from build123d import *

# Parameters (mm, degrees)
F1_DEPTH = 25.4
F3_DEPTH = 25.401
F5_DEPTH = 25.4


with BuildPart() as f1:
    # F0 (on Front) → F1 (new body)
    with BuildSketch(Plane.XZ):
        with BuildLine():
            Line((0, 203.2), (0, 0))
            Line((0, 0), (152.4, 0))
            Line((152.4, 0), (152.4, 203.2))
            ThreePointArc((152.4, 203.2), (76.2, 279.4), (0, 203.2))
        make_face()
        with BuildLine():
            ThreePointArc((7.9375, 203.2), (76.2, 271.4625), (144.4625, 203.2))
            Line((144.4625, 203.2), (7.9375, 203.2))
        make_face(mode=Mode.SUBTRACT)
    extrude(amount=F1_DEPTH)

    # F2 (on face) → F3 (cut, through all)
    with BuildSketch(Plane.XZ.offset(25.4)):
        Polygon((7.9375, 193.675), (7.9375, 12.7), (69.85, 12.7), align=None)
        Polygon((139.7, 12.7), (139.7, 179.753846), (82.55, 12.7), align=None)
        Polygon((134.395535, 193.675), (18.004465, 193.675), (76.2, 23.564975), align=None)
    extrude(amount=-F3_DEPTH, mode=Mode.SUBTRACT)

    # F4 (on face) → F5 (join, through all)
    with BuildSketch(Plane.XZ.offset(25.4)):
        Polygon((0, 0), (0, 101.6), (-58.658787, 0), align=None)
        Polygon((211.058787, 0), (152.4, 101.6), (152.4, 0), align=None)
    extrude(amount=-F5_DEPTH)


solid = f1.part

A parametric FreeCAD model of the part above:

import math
import FreeCAD as App
import Part
import Sketcher

V = App.Vector
Q = App.Units.Quantity

doc = App.newDocument("Part")
params = doc.addObject("Spreadsheet::Sheet", "Params")
for row, (alias, value) in enumerate([
    ("sketch1_radius", "3 in"),
    ("sketch1_height", "8 in"),
    ("sketch1_radius2", "2.6875 in"),
    ("pad1_length", "1 in"),
    ("sketch2_width", "2.25 in"),
    ("sketch2_width2", "2.4375 in"),
    ("sketch2_height", "7.125 in"),
    ("sketch3_height", "4 in"),
    ("pad2_length", "1 in"),
], start=1):
    params.set(f"A{row}", alias)
    params.set(f"B{row}", "=" + value)
    params.setAlias(f"B{row}", alias)

body = doc.addObject("PartDesign::Body", "Body")

sketch1 = body.newObject("Sketcher::SketchObject", "Sketch")
sketch1.AttachmentSupport = (doc.getObject("XZ_Plane"), [""])
sketch1.MapMode = "FlatFace"
sketch1.addGeometry(Part.LineSegment(V(0, 203, 0), V(0, 0, 0)), False)
sketch1.addGeometry(Part.LineSegment(V(0, 0, 0), V(152, 0, 0)), False)
sketch1.addGeometry(Part.LineSegment(V(152, 0, 0), V(152, 203, 0)), False)
sketch1.addGeometry(Part.ArcOfCircle(Part.Circle(V(76, 203, 0), V(0, 0, 1), 76), math.radians(0), math.radians(180)), False)
sketch1.addGeometry(Part.LineSegment(V(144, 203, 0), V(8, 203, 0)), False)
sketch1.addGeometry(Part.ArcOfCircle(Part.Circle(V(76, 203, 0), V(0, 0, 1), 68), math.radians(0), math.radians(180)), False)
sketch1.addConstraint(Sketcher.Constraint("Coincident", 0, 2, 1, 1))
sketch1.addConstraint(Sketcher.Constraint("Coincident", 1, 2, 2, 1))
sketch1.addConstraint(Sketcher.Constraint("Tangent", 2, 2, 3, 1))
sketch1.addConstraint(Sketcher.Constraint("Tangent", 3, 2, 0, 1))
sketch1.addConstraint(Sketcher.Constraint("Coincident", 4, 1, 5, 1))
sketch1.addConstraint(Sketcher.Constraint("Coincident", 5, 2, 4, 2))
sketch1.addConstraint(Sketcher.Constraint("Vertical", 0))
sketch1.addConstraint(Sketcher.Constraint("Horizontal", 1))
sketch1.addConstraint(Sketcher.Constraint("Vertical", 2))
sketch1.addConstraint(Sketcher.Constraint("Horizontal", 4))
sketch1.addConstraint(Sketcher.Constraint("Coincident", 0, 2, -1, 1))
sketch1.addConstraint(Sketcher.Constraint("Coincident", 5, 3, 3, 3))
sketch1.addConstraint(Sketcher.Constraint("Horizontal", 3, 2, 4, 1))
sketch1.addConstraint(Sketcher.Constraint("Radius", 3, Q("3 in")))
sketch1.addConstraint(Sketcher.Constraint("DistanceY", 0, 2, 0, 1, Q("8 in")))
sketch1.addConstraint(Sketcher.Constraint("Radius", 5, Q("2.6875 in")))
sketch1.setExpression("Constraints[13]", "Params.sketch1_radius")
sketch1.setExpression("Constraints[14]", "Params.sketch1_height")
sketch1.setExpression("Constraints[15]", "Params.sketch1_radius2")
pad1 = body.newObject("PartDesign::Pad", "Pad")
pad1.Profile = sketch1
pad1.setExpression("Length", "Params.pad1_length")

sketch2 = body.newObject("Sketcher::SketchObject", "Sketch001")
sketch2.AttachmentSupport = (doc.getObject("XZ_Plane"), [""])
sketch2.MapMode = "FlatFace"
sketch2.AttachmentOffset = App.Placement(V(0, 0, 1 * 25.4), App.Rotation())
sketch2.addGeometry(Part.LineSegment(V(8, 194, 0), V(8, 13, 0)), False)
sketch2.addGeometry(Part.LineSegment(V(8, 13, 0), V(70, 13, 0)), False)
sketch2.addGeometry(Part.LineSegment(V(70, 13, 0), V(8, 194, 0)), False)
sketch2.addGeometry(Part.LineSegment(V(140, 13, 0), V(140, 180, 0)), False)
sketch2.addGeometry(Part.LineSegment(V(140, 180, 0), V(83, 13, 0)), False)
sketch2.addGeometry(Part.LineSegment(V(83, 13, 0), V(140, 13, 0)), False)
sketch2.addGeometry(Part.LineSegment(V(134, 194, 0), V(18, 194, 0)), False)
sketch2.addGeometry(Part.LineSegment(V(18, 194, 0), V(76, 24, 0)), False)
sketch2.addGeometry(Part.LineSegment(V(76, 24, 0), V(134, 194, 0)), False)
sketch2.addConstraint(Sketcher.Constraint("Coincident", 0, 2, 1, 1))
sketch2.addConstraint(Sketcher.Constraint("Coincident", 1, 2, 2, 1))
sketch2.addConstraint(Sketcher.Constraint("Coincident", 2, 2, 0, 1))
sketch2.addConstraint(Sketcher.Constraint("Coincident", 3, 2, 4, 1))
sketch2.addConstraint(Sketcher.Constraint("Coincident", 4, 2, 5, 1))
sketch2.addConstraint(Sketcher.Constraint("Coincident", 5, 2, 3, 1))
sketch2.addConstraint(Sketcher.Constraint("Coincident", 6, 2, 7, 1))
sketch2.addConstraint(Sketcher.Constraint("Coincident", 7, 2, 8, 1))
sketch2.addConstraint(Sketcher.Constraint("Coincident", 8, 2, 6, 1))
sketch2.addConstraint(Sketcher.Constraint("Vertical", 0))
sketch2.addConstraint(Sketcher.Constraint("Horizontal", 1))
sketch2.addConstraint(Sketcher.Constraint("Vertical", 3))
sketch2.addConstraint(Sketcher.Constraint("Horizontal", 5))
sketch2.addConstraint(Sketcher.Constraint("Horizontal", 6))
sketch2.addConstraint(Sketcher.Constraint("Parallel", 2, 7))
sketch2.addConstraint(Sketcher.Constraint("Parallel", 4, 8))
sketch2.addConstraint(Sketcher.Constraint("Horizontal", 1, 2, 4, 2))
sketch2.addConstraint(Sketcher.Constraint("Horizontal", 2, 2, 6, 2))
sketch2.addConstraint(Sketcher.Constraint("Equal", 7, 8))
sketch2.addConstraint(Sketcher.Constraint("DistanceX", -1, 1, 7, 2, Q("3 in")))
sketch2.addConstraint(Sketcher.Constraint("DistanceX", 5, 1, 5, 2, Q("2.25 in")))
sketch2.addConstraint(Sketcher.Constraint("DistanceY", -1, 1, 0, 2, Q("0.5 in")))
sketch2.addConstraint(Sketcher.Constraint("DistanceX", -1, 1, 3, 2, Q("5.5 in")))
sketch2.addConstraint(Sketcher.Constraint("DistanceX", 1, 2, 4, 2, Q("0.5 in")))
sketch2.addConstraint(Sketcher.Constraint("DistanceX", 1, 1, 1, 2, Q("2.4375 in")))
sketch2.addConstraint(Sketcher.Constraint("DistanceY", 0, 2, 0, 1, Q("7.125 in")))
sketch2.addConstraint(Sketcher.Constraint("DistanceX", 6, 2, 6, 1, 116.39107))
sketch2.setExpression("Constraints[20]", "Params.sketch2_width")
sketch2.setExpression("Constraints[24]", "Params.sketch2_width2")
sketch2.setExpression("Constraints[25]", "Params.sketch2_height")
pocket1 = body.newObject("PartDesign::Pocket", "Pocket")
pocket1.Profile = sketch2
pocket1.Type = "ThroughAll"

sketch3 = body.newObject("Sketcher::SketchObject", "Sketch002")
sketch3.AttachmentSupport = (doc.getObject("XZ_Plane"), [""])
sketch3.MapMode = "FlatFace"
sketch3.AttachmentOffset = App.Placement(V(0, 0, 1 * 25.4), App.Rotation())
sketch3.addGeometry(Part.LineSegment(V(0, 0, 0), V(0, 102, 0)), False)
sketch3.addGeometry(Part.LineSegment(V(0, 102, 0), V(-59, 0, 0)), False)
sketch3.addGeometry(Part.LineSegment(V(-59, 0, 0), V(0, 0, 0)), False)
sketch3.addGeometry(Part.LineSegment(V(211, 0, 0), V(152, 102, 0)), False)
sketch3.addGeometry(Part.LineSegment(V(152, 102, 0), V(152, 0, 0)), False)
sketch3.addGeometry(Part.LineSegment(V(152, 0, 0), V(211, 0, 0)), False)
sketch3.addConstraint(Sketcher.Constraint("Coincident", 0, 2, 1, 1))
sketch3.addConstraint(Sketcher.Constraint("Coincident", 1, 2, 2, 1))
sketch3.addConstraint(Sketcher.Constraint("Coincident", 2, 2, 0, 1))
sketch3.addConstraint(Sketcher.Constraint("Coincident", 3, 2, 4, 1))
sketch3.addConstraint(Sketcher.Constraint("Coincident", 4, 2, 5, 1))
sketch3.addConstraint(Sketcher.Constraint("Coincident", 5, 2, 3, 1))
sketch3.addConstraint(Sketcher.Constraint("Vertical", 0))
sketch3.addConstraint(Sketcher.Constraint("Horizontal", 2))
sketch3.addConstraint(Sketcher.Constraint("Vertical", 4))
sketch3.addConstraint(Sketcher.Constraint("Horizontal", 5))
sketch3.addConstraint(Sketcher.Constraint("Coincident", 2, 2, -1, 1))
sketch3.addConstraint(Sketcher.Constraint("PointOnObject", 4, 2, -1))
sketch3.addConstraint(Sketcher.Constraint("Horizontal", 0, 2, 3, 2))
sketch3.addConstraint(Sketcher.Constraint("Equal", 2, 5))
sketch3.addConstraint(Sketcher.Constraint("DistanceY", 0, 1, 0, 2, Q("4 in")))
sketch3.addConstraint(Sketcher.Constraint("DistanceX", -1, 1, 3, 2, Q("6 in")))
sketch3.addConstraint(Sketcher.Constraint("Angle", 1, Q("-120 deg")))
sketch3.setExpression("Constraints[14]", "Params.sketch3_height")
pad2 = body.newObject("PartDesign::Pad", "Pad001")
pad2.Profile = sketch3
pad2.setExpression("Length", "Params.pad2_length")
pad2.Reversed = True

doc.recompute()
